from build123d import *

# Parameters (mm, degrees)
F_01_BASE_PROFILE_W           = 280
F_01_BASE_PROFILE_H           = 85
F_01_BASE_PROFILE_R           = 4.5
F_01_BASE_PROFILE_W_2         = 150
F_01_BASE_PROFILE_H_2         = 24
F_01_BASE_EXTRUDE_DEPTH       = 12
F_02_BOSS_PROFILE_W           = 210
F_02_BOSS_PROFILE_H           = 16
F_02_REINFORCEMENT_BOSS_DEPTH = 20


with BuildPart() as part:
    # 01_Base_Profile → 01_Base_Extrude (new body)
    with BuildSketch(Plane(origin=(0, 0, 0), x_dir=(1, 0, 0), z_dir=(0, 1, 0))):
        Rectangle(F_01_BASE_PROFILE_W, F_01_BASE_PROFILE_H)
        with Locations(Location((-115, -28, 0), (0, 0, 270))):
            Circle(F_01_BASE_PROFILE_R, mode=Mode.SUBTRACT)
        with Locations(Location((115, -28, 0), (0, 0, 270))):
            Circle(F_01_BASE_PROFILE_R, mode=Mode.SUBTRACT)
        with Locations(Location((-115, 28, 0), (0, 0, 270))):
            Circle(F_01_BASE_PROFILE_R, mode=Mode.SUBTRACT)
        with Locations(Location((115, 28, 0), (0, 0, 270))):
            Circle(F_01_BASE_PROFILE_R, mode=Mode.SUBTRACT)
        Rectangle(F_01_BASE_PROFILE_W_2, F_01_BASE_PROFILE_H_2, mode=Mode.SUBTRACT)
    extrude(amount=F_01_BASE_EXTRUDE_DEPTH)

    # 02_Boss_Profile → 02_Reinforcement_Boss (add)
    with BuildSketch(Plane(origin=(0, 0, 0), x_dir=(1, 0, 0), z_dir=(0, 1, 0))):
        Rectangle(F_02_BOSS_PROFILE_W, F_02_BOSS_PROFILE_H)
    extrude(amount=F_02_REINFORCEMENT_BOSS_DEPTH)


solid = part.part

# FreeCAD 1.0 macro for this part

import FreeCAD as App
import Part
import Sketcher

V = App.Vector


def add_polygon(sketch, points):
    """Adds a closed chain of lines whose ends are joined by coincident constraints."""
    first, n = sketch.GeometryCount, len(points)
    for a, b in zip(points, points[1:] + points[:1]):
        sketch.addGeometry(Part.LineSegment(App.Vector(*a, 0), App.Vector(*b, 0)), False)
    for i in range(n):
        sketch.addConstraint(Sketcher.Constraint("Coincident", first + i, 2, first + (i + 1) % n, 1))

doc = App.newDocument("Part")
body = doc.addObject("PartDesign::Body", "Body")

# Sketch on XZ plane
sketch1 = body.newObject("Sketcher::SketchObject", "Sketch")
sketch1.AttachmentSupport = (doc.getObject("XZ_Plane"), [""])
sketch1.MapMode = "FlatFace"
add_polygon(sketch1, [(-140, -42.5), (-140, 42.5), (140, 42.5), (140, -42.5)])  # lines 0-3
sketch1.addGeometry(Part.Circle(V(-115, 28, 0), V(0, 0, 1), 4.5), False)  # 4
sketch1.addGeometry(Part.Circle(V(115, 28, 0), V(0, 0, 1), 4.5), False)  # 5
add_polygon(sketch1, [(75, 12), (-75, 12), (-75, -12), (75, -12)])  # lines 6-9
sketch1.addGeometry(Part.Circle(V(-115, -28, 0), V(0, 0, 1), 4.5), False)  # 10
sketch1.addGeometry(Part.Circle(V(115, -28, 0), V(0, 0, 1), 4.5), False)  # 11
sketch1.addConstraint([
    Sketcher.Constraint("Vertical", 0),
    Sketcher.Constraint("Horizontal", 1),
    Sketcher.Constraint("Vertical", 2),
    Sketcher.Constraint("Horizontal", 3),
    Sketcher.Constraint("Horizontal", 6),
    Sketcher.Constraint("Vertical", 7),
    Sketcher.Constraint("Horizontal", 8),
    Sketcher.Constraint("Vertical", 9),
    Sketcher.Constraint("Equal", 4, 5),
    Sketcher.Constraint("Equal", 5, 10),
    Sketcher.Constraint("Equal", 10, 11),
    Sketcher.Constraint("Symmetric", 5, 3, 10, 3, -1, 1),
    Sketcher.Constraint("Symmetric", 4, 3, 11, 3, -1, 1),
    Sketcher.Constraint("Symmetric", 0, 2, 2, 2, -1, 1),
    Sketcher.Constraint("Symmetric", 6, 2, 8, 2, -1, 1),
    Sketcher.Constraint("Symmetric", 4, 3, 5, 3, -2),
    Sketcher.Constraint("Diameter", 4, 9.0),
    Sketcher.Constraint("DistanceX", 1, 1, 1, 2, 280.0),
    Sketcher.Constraint("DistanceX", 6, 2, 6, 1, 150.0),
    Sketcher.Constraint("DistanceY", 0, 1, 0, 2, 85.0),
    Sketcher.Constraint("DistanceY", 7, 2, 7, 1, 24.0),
    Sketcher.Constraint("DistanceX", 4, 3, -1, 1, 115.0),
    Sketcher.Constraint("DistanceY", -1, 1, 4, 3, 28.0),
])
pad1 = body.newObject("PartDesign::Pad", "Pad")
pad1.Profile = sketch1
pad1.Length = 12
pad1.Reversed = True

# Sketch on XZ plane
sketch2 = body.newObject("Sketcher::SketchObject", "Sketch001")
sketch2.AttachmentSupport = (doc.getObject("XZ_Plane"), [""])
sketch2.MapMode = "FlatFace"
add_polygon(sketch2, [(-105, -8), (-105, 8), (105, 8), (105, -8)])  # lines 0-3
sketch2.addConstraint([
    Sketcher.Constraint("Vertical", 0),
    Sketcher.Constraint("Horizontal", 1),
    Sketcher.Constraint("Vertical", 2),
    Sketcher.Constraint("Horizontal", 3),
    Sketcher.Constraint("Symmetric", 0, 2, 2, 2, -1, 1),
    Sketcher.Constraint("DistanceX", 1, 1, 1, 2, 210.0),
    Sketcher.Constraint("DistanceY", 0, 1, 0, 2, 16.0),
])
pad2 = body.newObject("PartDesign::Pad", "Pad001")
pad2.Profile = sketch2
pad2.Length = 20
pad2.Reversed = True

doc.recompute()
